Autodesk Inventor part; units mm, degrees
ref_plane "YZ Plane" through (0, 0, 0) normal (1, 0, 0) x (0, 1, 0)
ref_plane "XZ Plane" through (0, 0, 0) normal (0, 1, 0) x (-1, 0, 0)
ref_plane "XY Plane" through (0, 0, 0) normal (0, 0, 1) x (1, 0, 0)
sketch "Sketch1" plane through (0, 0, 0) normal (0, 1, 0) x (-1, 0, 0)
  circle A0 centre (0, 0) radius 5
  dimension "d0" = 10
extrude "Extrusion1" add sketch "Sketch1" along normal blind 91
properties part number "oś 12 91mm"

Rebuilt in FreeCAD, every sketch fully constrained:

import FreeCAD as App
import Part
import Sketcher

V = App.Vector

doc = App.newDocument("Part")
body = doc.addObject("PartDesign::Body", "Body")

sketch1 = body.newObject("Sketcher::SketchObject", "Sketch")
sketch1.AttachmentSupport = (doc.getObject("XZ_Plane"), [""])
sketch1.MapMode = "FlatFace"
sketch1.addGeometry(Part.Circle(V(0, 0, 0), V(0, 0, 1), 5), False)
sketch1.addConstraint(Sketcher.Constraint("Coincident", 0, 3, -1, 1))
sketch1.addConstraint(Sketcher.Constraint("Diameter", 0, 10.0))
pad1 = body.newObject("PartDesign::Pad", "Pad")
pad1.Profile = sketch1
pad1.Length = 91
pad1.Reversed = True

doc.recompute()
